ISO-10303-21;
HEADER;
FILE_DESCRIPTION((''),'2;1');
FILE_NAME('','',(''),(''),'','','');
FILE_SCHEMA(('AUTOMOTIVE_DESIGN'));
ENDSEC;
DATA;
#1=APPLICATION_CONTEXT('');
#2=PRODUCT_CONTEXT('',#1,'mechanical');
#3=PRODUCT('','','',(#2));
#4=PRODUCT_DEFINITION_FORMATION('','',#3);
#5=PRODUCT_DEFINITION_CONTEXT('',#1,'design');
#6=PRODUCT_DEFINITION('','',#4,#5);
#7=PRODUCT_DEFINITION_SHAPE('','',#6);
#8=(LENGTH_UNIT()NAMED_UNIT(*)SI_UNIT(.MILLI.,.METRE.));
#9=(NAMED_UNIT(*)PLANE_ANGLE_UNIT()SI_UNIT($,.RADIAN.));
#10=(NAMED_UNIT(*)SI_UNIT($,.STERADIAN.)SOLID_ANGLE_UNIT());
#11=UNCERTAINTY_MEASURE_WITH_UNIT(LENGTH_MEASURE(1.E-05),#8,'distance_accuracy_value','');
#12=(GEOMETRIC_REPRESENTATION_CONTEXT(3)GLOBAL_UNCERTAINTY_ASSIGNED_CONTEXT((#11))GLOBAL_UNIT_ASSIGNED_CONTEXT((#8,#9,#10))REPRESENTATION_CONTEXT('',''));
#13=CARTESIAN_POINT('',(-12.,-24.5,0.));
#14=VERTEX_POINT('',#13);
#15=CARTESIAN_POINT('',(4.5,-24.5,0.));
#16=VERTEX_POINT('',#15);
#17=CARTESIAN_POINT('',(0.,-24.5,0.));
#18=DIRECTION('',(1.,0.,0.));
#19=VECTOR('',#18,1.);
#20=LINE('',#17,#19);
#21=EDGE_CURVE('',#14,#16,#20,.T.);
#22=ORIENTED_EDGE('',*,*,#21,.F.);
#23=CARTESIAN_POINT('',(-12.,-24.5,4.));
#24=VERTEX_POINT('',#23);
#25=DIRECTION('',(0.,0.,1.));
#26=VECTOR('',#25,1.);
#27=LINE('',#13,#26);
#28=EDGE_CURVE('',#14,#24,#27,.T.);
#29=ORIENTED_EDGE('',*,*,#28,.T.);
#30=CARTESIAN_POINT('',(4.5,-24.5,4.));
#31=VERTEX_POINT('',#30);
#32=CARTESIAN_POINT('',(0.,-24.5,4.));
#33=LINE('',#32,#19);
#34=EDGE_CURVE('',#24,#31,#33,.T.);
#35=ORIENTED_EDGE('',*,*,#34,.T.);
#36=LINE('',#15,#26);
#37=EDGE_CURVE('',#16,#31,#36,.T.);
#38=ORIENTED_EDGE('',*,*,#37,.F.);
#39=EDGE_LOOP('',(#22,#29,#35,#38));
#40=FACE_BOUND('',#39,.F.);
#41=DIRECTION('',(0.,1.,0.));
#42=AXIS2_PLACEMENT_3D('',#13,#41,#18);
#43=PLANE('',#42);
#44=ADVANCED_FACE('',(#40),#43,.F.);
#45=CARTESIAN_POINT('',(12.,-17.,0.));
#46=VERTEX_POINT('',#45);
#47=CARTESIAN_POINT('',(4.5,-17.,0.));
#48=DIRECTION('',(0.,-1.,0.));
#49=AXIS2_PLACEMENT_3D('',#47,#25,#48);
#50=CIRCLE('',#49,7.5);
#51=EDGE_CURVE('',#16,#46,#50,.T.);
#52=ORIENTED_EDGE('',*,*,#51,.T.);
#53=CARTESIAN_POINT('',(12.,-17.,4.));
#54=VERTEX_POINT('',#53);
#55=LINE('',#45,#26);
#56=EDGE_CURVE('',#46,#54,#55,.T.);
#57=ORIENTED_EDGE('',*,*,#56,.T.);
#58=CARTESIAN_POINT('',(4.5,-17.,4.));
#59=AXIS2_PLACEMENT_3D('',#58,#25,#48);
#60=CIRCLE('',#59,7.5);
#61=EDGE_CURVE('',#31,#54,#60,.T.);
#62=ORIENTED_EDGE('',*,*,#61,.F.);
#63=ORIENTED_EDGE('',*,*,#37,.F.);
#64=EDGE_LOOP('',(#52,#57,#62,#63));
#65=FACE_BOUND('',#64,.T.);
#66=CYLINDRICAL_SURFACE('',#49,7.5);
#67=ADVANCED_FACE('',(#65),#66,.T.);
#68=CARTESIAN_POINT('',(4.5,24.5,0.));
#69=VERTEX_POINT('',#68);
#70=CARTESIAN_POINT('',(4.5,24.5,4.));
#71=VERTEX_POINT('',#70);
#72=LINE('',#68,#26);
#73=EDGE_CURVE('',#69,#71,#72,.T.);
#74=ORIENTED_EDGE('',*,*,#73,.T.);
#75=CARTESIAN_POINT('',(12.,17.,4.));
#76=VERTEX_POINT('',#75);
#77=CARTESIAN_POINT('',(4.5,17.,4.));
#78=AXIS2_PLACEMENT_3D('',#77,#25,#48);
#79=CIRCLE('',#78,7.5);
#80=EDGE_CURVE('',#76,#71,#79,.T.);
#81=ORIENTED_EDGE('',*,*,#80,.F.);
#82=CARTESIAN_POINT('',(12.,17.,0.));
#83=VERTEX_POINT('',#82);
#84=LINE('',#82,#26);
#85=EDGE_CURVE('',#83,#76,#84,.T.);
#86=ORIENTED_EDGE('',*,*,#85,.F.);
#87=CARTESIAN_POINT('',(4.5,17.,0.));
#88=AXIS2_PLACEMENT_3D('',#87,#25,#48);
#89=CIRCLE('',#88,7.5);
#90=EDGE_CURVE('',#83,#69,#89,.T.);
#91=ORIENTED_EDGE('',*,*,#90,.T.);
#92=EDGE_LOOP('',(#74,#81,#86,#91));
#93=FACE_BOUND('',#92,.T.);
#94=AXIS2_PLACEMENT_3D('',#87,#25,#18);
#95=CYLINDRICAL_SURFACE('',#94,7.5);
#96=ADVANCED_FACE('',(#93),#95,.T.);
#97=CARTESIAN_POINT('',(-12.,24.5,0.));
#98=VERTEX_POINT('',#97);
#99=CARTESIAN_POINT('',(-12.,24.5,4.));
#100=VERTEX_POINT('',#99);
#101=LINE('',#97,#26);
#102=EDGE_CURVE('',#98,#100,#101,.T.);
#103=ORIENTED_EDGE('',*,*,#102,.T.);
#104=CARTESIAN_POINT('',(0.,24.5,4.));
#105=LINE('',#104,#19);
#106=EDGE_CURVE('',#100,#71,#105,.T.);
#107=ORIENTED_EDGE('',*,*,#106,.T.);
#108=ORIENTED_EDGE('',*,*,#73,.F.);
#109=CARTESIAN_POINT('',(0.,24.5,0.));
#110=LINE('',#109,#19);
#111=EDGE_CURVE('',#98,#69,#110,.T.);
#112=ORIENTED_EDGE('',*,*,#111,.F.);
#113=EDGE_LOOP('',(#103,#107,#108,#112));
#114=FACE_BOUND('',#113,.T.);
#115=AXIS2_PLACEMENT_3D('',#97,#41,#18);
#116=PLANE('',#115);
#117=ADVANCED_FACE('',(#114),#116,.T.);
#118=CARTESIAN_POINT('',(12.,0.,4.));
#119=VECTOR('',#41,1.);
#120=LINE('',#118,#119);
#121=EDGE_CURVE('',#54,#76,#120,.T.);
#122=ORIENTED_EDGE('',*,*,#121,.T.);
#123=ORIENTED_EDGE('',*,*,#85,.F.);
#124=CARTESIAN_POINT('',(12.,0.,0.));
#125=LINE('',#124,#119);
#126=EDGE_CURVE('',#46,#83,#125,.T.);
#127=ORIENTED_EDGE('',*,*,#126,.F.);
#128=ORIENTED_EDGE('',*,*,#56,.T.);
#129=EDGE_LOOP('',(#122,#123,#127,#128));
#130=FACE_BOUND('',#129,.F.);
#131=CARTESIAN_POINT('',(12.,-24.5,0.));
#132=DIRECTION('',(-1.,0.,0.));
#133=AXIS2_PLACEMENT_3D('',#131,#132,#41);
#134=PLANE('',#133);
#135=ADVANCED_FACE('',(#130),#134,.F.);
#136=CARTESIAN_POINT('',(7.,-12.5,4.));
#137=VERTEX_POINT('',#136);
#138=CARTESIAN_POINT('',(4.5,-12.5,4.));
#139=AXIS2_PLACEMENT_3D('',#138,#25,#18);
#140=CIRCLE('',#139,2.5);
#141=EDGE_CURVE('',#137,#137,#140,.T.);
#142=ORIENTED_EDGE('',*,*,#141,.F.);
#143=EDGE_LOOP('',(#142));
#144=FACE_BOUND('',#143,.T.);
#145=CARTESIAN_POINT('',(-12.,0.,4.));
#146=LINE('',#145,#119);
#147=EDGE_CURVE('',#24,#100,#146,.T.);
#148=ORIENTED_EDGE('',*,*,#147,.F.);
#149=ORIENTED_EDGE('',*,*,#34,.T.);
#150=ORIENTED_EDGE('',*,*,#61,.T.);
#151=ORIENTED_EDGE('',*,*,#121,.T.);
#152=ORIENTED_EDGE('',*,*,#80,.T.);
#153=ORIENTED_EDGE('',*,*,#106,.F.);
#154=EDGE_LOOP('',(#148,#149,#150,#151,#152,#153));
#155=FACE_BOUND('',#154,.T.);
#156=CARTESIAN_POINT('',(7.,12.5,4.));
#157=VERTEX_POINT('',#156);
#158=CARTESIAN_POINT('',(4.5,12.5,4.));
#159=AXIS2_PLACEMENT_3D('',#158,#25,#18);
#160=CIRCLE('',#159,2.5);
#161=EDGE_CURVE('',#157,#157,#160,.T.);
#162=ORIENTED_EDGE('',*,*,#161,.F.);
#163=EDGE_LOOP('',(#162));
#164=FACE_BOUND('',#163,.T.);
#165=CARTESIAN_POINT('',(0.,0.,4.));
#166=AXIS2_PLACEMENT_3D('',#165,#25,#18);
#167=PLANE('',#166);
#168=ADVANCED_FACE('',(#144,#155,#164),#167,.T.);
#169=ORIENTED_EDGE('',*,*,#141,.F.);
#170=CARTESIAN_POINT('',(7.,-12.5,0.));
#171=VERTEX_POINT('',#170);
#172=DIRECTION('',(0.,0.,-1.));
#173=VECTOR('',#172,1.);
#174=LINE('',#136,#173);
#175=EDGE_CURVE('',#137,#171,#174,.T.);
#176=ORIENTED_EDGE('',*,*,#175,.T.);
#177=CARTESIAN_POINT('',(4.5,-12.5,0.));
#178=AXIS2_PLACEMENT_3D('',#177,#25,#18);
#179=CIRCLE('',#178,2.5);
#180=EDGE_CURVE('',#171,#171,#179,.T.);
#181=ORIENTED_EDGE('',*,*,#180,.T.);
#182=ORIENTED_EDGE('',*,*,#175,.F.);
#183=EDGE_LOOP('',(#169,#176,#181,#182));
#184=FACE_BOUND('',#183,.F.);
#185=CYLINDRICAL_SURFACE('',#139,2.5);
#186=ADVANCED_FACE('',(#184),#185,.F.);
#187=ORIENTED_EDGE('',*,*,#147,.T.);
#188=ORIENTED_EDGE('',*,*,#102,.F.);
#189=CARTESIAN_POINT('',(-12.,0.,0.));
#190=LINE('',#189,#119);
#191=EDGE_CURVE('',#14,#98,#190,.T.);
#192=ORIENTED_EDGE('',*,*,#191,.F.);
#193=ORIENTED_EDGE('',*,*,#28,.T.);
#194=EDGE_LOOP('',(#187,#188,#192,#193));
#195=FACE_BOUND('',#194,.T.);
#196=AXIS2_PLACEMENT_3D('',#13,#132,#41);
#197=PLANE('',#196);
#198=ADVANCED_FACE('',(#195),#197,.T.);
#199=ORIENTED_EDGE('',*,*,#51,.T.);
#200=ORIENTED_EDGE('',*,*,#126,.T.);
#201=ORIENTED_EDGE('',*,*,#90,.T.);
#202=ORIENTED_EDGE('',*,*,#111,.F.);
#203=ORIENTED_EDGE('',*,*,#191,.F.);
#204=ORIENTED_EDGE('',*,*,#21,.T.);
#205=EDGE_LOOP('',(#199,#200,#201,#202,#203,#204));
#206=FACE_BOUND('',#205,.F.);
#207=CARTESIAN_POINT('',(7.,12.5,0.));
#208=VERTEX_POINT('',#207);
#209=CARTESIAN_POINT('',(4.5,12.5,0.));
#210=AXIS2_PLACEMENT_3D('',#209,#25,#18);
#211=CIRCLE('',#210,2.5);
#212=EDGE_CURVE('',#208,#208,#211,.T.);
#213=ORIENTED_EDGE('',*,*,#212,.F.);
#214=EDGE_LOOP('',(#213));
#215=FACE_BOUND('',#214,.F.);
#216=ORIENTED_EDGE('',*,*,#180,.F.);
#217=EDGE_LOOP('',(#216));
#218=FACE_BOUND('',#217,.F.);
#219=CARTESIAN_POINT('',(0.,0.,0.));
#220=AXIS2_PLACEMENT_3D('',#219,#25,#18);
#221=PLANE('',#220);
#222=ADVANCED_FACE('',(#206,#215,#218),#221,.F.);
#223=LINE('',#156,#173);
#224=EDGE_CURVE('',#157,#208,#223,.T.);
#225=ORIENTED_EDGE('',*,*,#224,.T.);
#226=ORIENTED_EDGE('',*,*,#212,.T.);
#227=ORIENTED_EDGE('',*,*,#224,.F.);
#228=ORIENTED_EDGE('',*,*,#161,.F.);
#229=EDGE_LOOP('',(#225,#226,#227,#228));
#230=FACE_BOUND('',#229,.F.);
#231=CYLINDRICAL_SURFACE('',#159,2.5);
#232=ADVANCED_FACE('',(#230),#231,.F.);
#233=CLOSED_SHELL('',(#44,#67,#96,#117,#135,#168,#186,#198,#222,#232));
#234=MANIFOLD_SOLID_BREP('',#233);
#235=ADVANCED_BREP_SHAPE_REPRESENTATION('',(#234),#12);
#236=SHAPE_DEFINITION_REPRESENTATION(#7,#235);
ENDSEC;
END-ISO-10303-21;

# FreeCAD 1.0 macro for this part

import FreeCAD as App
import Part
import Sketcher
from FreeCAD import Vector
Q = App.Units.Quantity


def edges_at(feature, points):
    """Names of the edges that pass closest to the given points."""
    edges = feature.Shape.Edges
    near = lambda p: min(range(len(edges)), key=lambda i: edges[i].distToShape(Part.Vertex(*p))[0])
    return sorted({f"Edge{near(p) + 1}" for p in points})

doc = App.newDocument("Part")
body = doc.addObject("PartDesign::Body", "Body")

sketch1 = body.newObject("Sketcher::SketchObject", "Sketch")
sketch1.AttachmentSupport = (doc.getObject("XY_Plane"), [""])
sketch1.MapMode = "FlatFace"
sketch1.addGeometry([
    Part.LineSegment(Vector(-12, 24.5, 0), Vector(-12, -24.5, 0)),
    Part.LineSegment(Vector(-12, -24.5, 0), Vector(12, -24.5, 0)),
    Part.LineSegment(Vector(12, -24.5, 0), Vector(12, 24.5, 0)),
    Part.LineSegment(Vector(12, 24.5, 0), Vector(-12, 24.5, 0)),
], False)
sketch1.addConstraint([
    Sketcher.Constraint("Coincident", 0, 2, 1, 1),
    Sketcher.Constraint("Coincident", 1, 2, 2, 1),
    Sketcher.Constraint("Coincident", 2, 2, 3, 1),
    Sketcher.Constraint("Coincident", 3, 2, 0, 1),
    Sketcher.Constraint("Vertical", 0),
    Sketcher.Constraint("Horizontal", 1),
    Sketcher.Constraint("Vertical", 2),
    Sketcher.Constraint("Horizontal", 3),
    Sketcher.Constraint("Symmetric", 0, 2, 2, 2, -1, 1),
    Sketcher.Constraint("DistanceX", 1, 1, 1, 2, Q("24 mm")),
    Sketcher.Constraint("DistanceY", 0, 2, 0, 1, Q("49 mm")),
])
pad1 = body.newObject("PartDesign::Pad", "Pad")
pad1.Profile = sketch1
pad1.Length = 4
doc.recompute()

fillet = body.newObject("PartDesign::Fillet", "Fillet")
fillet.Base = (pad1, edges_at(pad1, [(12, -24.5, 2), (12, 24.5, 2)]))
fillet.Radius = 7.5

sketch2 = body.newObject("Sketcher::SketchObject", "Sketch001")
sketch2.AttachmentSupport = (doc.getObject("XY_Plane"), [""])
sketch2.MapMode = "FlatFace"
sketch2.AttachmentOffset = App.Placement(Vector(0, 0, 4), App.Rotation())
sketch2.addGeometry([
    Part.Circle(Vector(4.5, 12.5, 0), Vector(0, 0, 1), 2.5),
    Part.Circle(Vector(4.5, -12.5, 0), Vector(0, 0, 1), 2.5),
], False)
sketch2.addConstraint([
    Sketcher.Constraint("Equal", 0, 1),
    Sketcher.Constraint("Symmetric", 0, 3, 1, 3, -1),
    Sketcher.Constraint("Diameter", 0, Q("5 mm")),
    Sketcher.Constraint("DistanceY", 1, 3, 0, 3, Q("25 mm")),
    Sketcher.Constraint("DistanceX", -1, 1, 0, 3, Q("4.5 mm")),
])
pocket1 = body.newObject("PartDesign::Pocket", "Pocket")
pocket1.Profile = sketch2
pocket1.Length = 5

doc.recompute()
